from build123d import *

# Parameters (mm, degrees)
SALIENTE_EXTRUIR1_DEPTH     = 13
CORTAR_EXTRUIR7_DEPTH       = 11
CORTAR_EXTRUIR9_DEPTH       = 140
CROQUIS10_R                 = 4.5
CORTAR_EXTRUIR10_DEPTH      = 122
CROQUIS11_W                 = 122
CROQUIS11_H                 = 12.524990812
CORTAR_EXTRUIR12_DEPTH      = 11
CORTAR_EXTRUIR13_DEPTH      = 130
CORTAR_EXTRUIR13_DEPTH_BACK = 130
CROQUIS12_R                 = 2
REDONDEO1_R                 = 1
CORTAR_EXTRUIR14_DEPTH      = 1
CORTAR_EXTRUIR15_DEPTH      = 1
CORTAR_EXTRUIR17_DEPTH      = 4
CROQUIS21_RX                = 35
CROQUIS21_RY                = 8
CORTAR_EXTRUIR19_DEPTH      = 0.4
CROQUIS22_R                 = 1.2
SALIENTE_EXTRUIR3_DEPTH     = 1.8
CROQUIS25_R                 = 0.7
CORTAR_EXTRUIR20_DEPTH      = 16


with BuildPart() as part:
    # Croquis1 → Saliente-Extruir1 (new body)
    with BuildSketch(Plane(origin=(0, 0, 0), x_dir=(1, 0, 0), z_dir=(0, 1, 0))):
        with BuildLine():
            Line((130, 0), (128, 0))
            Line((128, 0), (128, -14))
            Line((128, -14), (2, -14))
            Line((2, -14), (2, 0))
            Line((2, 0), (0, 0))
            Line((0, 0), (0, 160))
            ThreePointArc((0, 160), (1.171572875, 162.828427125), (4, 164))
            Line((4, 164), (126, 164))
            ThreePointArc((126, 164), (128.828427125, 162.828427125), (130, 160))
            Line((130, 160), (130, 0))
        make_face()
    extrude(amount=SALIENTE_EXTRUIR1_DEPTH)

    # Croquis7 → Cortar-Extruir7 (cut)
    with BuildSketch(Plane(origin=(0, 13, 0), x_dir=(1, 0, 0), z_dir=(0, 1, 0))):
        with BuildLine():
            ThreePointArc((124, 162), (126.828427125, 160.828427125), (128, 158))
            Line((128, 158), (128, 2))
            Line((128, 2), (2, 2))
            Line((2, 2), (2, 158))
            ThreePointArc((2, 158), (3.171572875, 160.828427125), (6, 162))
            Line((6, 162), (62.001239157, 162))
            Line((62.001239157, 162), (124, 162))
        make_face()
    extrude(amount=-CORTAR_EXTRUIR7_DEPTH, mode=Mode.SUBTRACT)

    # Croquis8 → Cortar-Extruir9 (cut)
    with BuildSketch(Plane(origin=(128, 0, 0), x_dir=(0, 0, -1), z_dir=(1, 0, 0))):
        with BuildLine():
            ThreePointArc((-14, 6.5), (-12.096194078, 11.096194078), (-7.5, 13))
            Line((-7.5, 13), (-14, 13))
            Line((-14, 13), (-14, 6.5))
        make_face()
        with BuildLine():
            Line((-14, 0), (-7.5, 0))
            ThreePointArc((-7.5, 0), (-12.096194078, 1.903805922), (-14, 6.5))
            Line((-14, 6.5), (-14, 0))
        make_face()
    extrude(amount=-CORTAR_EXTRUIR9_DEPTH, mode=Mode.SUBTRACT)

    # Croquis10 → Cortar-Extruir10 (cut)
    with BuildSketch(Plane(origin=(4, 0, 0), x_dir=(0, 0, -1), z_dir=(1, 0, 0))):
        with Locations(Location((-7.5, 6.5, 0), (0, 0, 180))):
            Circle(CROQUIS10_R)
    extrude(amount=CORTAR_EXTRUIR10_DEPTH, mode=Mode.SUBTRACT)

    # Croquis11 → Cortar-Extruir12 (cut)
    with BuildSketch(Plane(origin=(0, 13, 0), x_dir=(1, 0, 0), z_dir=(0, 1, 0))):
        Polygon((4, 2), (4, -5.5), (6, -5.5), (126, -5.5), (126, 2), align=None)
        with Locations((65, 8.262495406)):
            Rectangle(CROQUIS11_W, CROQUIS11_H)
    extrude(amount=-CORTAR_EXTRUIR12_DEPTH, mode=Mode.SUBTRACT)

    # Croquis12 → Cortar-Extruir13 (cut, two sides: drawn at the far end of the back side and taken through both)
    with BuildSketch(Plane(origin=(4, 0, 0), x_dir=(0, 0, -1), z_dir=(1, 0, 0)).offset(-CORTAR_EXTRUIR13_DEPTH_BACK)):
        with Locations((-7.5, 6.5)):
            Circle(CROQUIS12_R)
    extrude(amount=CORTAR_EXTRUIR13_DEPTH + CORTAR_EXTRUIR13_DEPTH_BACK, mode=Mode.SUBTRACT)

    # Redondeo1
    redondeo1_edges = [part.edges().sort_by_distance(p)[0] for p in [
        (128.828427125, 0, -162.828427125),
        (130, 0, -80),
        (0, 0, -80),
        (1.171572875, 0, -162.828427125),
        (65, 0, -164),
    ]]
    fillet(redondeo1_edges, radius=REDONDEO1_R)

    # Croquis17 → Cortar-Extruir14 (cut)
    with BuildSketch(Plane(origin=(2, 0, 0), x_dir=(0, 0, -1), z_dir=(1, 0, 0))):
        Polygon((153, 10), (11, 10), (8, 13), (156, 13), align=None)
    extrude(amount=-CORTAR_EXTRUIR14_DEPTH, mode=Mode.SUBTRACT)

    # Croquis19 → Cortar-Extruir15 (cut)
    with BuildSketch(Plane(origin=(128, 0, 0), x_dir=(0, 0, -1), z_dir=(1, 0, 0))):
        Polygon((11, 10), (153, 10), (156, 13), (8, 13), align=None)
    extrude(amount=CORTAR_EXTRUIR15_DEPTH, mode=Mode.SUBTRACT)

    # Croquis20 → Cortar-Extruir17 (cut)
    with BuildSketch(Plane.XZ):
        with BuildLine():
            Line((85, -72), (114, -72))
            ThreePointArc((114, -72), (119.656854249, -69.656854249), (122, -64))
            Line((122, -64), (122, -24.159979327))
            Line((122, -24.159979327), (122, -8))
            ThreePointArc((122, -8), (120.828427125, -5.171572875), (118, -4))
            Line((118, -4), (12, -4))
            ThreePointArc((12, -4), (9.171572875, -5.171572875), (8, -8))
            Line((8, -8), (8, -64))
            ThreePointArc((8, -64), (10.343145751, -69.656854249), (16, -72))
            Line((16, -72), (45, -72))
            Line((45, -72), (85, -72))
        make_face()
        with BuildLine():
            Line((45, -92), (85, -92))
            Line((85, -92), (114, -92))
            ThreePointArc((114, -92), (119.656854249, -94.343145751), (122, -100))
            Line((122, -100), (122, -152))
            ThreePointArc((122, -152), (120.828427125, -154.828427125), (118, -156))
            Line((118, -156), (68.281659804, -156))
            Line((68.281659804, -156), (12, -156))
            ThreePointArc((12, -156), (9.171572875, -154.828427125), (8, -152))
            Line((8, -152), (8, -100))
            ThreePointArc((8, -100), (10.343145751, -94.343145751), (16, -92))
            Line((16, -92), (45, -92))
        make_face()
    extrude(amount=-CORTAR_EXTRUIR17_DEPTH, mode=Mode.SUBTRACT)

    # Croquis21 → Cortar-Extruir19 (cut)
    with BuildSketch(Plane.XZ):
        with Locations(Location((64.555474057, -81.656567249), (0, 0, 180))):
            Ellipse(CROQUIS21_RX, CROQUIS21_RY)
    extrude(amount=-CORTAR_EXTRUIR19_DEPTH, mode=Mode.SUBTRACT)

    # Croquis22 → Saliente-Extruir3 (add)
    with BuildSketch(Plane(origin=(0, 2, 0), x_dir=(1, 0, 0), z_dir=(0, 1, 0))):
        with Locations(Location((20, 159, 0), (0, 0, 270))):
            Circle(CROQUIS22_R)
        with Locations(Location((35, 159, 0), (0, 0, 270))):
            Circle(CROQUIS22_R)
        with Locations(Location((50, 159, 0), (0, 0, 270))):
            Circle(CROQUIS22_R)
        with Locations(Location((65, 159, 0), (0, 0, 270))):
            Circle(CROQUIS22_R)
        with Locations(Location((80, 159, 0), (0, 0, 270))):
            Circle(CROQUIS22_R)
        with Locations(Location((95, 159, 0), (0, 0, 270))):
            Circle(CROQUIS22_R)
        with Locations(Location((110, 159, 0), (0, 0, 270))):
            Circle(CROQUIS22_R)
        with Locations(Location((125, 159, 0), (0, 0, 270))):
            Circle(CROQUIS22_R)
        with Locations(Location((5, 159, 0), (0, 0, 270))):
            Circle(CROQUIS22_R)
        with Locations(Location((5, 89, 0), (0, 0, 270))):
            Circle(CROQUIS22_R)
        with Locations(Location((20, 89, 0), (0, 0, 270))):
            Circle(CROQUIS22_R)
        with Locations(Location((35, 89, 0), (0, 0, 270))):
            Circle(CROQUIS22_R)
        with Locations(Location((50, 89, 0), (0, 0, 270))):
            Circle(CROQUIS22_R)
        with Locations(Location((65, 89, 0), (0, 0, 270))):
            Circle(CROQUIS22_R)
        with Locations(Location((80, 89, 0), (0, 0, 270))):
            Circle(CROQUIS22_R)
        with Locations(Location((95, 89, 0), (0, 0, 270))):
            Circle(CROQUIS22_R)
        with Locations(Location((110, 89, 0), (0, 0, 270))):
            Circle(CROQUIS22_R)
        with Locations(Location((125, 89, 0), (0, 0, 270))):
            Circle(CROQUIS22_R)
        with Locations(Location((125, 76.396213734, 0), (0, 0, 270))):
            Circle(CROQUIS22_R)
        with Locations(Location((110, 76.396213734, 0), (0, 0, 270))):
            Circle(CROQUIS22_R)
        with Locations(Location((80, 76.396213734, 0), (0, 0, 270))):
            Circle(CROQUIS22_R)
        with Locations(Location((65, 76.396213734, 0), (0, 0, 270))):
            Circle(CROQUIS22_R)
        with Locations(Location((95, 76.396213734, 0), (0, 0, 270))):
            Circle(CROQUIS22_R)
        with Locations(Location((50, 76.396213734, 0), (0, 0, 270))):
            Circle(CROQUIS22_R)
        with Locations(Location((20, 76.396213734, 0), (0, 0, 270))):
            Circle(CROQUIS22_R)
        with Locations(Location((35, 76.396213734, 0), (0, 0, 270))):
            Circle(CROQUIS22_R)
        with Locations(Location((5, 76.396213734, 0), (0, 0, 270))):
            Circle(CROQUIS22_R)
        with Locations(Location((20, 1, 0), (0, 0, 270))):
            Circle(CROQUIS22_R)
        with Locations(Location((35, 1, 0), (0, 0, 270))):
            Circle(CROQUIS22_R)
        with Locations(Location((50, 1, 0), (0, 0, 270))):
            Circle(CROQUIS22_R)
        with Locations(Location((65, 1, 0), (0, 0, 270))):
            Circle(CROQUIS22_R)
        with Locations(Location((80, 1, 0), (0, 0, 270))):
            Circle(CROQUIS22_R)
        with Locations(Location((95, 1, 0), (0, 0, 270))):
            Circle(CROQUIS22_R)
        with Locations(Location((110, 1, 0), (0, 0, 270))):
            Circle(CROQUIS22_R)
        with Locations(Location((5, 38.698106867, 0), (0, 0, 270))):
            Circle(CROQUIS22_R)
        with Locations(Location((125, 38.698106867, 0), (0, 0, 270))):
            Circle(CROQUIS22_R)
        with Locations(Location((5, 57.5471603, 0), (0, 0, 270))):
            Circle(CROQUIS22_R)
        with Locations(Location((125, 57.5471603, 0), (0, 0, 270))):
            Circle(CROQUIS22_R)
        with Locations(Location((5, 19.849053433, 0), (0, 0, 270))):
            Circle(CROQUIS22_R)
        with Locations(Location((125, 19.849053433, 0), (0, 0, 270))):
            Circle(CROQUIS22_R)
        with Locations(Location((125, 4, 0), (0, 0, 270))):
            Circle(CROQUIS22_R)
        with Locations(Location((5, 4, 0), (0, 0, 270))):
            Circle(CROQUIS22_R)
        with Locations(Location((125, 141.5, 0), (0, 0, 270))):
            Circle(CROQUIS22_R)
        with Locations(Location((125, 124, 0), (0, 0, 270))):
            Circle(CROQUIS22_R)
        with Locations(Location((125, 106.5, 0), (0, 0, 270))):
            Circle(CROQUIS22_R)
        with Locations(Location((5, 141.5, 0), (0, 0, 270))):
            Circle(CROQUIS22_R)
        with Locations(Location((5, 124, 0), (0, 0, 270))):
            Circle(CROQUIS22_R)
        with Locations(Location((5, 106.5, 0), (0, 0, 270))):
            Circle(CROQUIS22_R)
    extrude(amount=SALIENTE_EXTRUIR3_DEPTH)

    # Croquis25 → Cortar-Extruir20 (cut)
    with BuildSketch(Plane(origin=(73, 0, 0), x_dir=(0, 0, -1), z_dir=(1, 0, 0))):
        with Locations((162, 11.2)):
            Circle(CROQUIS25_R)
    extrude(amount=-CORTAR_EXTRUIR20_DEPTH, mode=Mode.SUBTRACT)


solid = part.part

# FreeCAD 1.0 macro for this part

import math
import FreeCAD as App
import Part
import Sketcher
from FreeCAD import Vector


def edges_at(feature, points):
    """Names of the edges that pass closest to the given points."""
    edges = feature.Shape.Edges
    near = lambda p: min(range(len(edges)), key=lambda i: edges[i].distToShape(Part.Vertex(*p))[0])
    return sorted({f"Edge{near(p) + 1}" for p in points})

doc = App.newDocument("Part")
body = doc.addObject("PartDesign::Body", "Body")

# Sketch on XZ plane
sketch1 = doc.addObject("Sketcher::SketchObject", "Sketch")
body.addObject(sketch1)
sketch1.AttachmentSupport = (doc.XZ_Plane, [""])
sketch1.MapMode = "FlatFace"
sketch1.addGeometry([
    Part.LineSegment(Vector(128, 0, 0), Vector(130, 0, 0)),  # 0
    Part.LineSegment(Vector(130, 0, 0), Vector(130, -160, 0)),  # 1
    Part.ArcOfCircle(Part.Circle(Vector(126, -160, 0), Vector(0, 0, 1), 4), math.radians(-90), math.radians(0)),  # 2
    Part.LineSegment(Vector(126, -164, 0), Vector(4, -164, 0)),  # 3
    Part.ArcOfCircle(Part.Circle(Vector(4, -160, 0), Vector(0, 0, 1), 4), math.radians(180), math.radians(270)),  # 4
    Part.LineSegment(Vector(0, -160, 0), Vector(0, 0, 0)),  # 5
    Part.LineSegment(Vector(0, 0, 0), Vector(2, 0, 0)),  # 6
    Part.LineSegment(Vector(2, 0, 0), Vector(2, 14, 0)),  # 7
    Part.LineSegment(Vector(2, 14, 0), Vector(128, 14, 0)),  # 8
    Part.LineSegment(Vector(128, 14, 0), Vector(128, 0, 0)),  # 9
], False)
sketch1.addConstraint([
    Sketcher.Constraint("Coincident", 0, 2, 1, 1),
    Sketcher.Constraint("Tangent", 1, 2, 2, 2),
    Sketcher.Constraint("Tangent", 2, 1, 3, 1),
    Sketcher.Constraint("Tangent", 3, 2, 4, 2),
    Sketcher.Constraint("Tangent", 4, 1, 5, 1),
    Sketcher.Constraint("Coincident", 5, 2, 6, 1),
    Sketcher.Constraint("Coincident", 6, 2, 7, 1),
    Sketcher.Constraint("Coincident", 7, 2, 8, 1),
    Sketcher.Constraint("Coincident", 8, 2, 9, 1),
    Sketcher.Constraint("Coincident", 9, 2, 0, 1),
    Sketcher.Constraint("Horizontal", 0),
    Sketcher.Constraint("Vertical", 1),
    Sketcher.Constraint("Horizontal", 3),
    Sketcher.Constraint("Vertical", 5),
    Sketcher.Constraint("Horizontal", 6),
    Sketcher.Constraint("Vertical", 7),
    Sketcher.Constraint("Horizontal", 8),
    Sketcher.Constraint("Vertical", 9),
    Sketcher.Constraint("Coincident", 5, 2, -1, 1),
    Sketcher.Constraint("Equal", 2, 4),
    Sketcher.Constraint("PointOnObject", 0, 2, -1),
    Sketcher.Constraint("Equal", 0, 6),
    Sketcher.Constraint("Radius", 2, 4.0),
    Sketcher.Constraint("DistanceX", 0, 1, 0, 2, 2.0),
    Sketcher.Constraint("DistanceX", 3, 2, 3, 1, 122.0),
    Sketcher.Constraint("DistanceY", 1, 2, 1, 1, 160.0),
    Sketcher.Constraint("DistanceY", 7, 1, 7, 2, 14.0),
])
pad1 = doc.addObject("PartDesign::Pad", "Pad")
body.addObject(pad1)
pad1.Profile = sketch1
pad1.Length = 13
pad1.Reversed = True

# Sketch on XZ plane
sketch2 = doc.addObject("Sketcher::SketchObject", "Sketch001")
body.addObject(sketch2)
sketch2.AttachmentSupport = (doc.XZ_Plane, [""])
sketch2.MapMode = "FlatFace"
sketch2.AttachmentOffset = App.Placement(Vector(0, 0, -13), App.Rotation())
sketch2.addGeometry([
    Part.ArcOfCircle(Part.Circle(Vector(124, -158, 0), Vector(0, 0, 1), 4), math.radians(-90), math.radians(0)),  # 0
    Part.LineSegment(Vector(124, -162, 0), Vector(6, -162, 0)),  # 1
    Part.ArcOfCircle(Part.Circle(Vector(6, -158, 0), Vector(0, 0, 1), 4), math.radians(180), math.radians(270)),  # 2
    Part.LineSegment(Vector(2, -158, 0), Vector(2, -2, 0)),  # 3
    Part.LineSegment(Vector(2, -2, 0), Vector(128, -2, 0)),  # 4
    Part.LineSegment(Vector(128, -2, 0), Vector(128, -158, 0)),  # 5
], False)
sketch2.addConstraint([
    Sketcher.Constraint("Tangent", 0, 1, 1, 1),
    Sketcher.Constraint("Tangent", 1, 2, 2, 2),
    Sketcher.Constraint("Tangent", 2, 1, 3, 1),
    Sketcher.Constraint("Coincident", 3, 2, 4, 1),
    Sketcher.Constraint("Coincident", 4, 2, 5, 1),
    Sketcher.Constraint("Tangent", 5, 2, 0, 2),
    Sketcher.Constraint("Horizontal", 1),
    Sketcher.Constraint("Vertical", 3),
    Sketcher.Constraint("Horizontal", 4),
    Sketcher.Constraint("Vertical", 5),
    Sketcher.Constraint("Equal", 0, 2),
    Sketcher.Constraint("Radius", 0, 4.0),
    Sketcher.Constraint("DistanceX", 1, 2, 1, 1, 118.0),
    Sketcher.Constraint("DistanceY", 3, 1, 3, 2, 156.0),
    Sketcher.Constraint("DistanceX", -1, 1, 0, 3, 124.0),
    Sketcher.Constraint("DistanceY", 0, 3, -1, 1, 158.0),
])
pocket1 = doc.addObject("PartDesign::Pocket", "Pocket")
body.addObject(pocket1)
pocket1.Profile = sketch2
pocket1.Length = 11
pocket1.Reversed = True

# Sketch on YZ plane
sketch3 = doc.addObject("Sketcher::SketchObject", "Sketch002")
body.addObject(sketch3)
sketch3.AttachmentSupport = (doc.YZ_Plane, [""])
sketch3.MapMode = "FlatFace"
sketch3.AttachmentOffset = App.Placement(Vector(0, 0, 128), App.Rotation())
sketch3.addGeometry([
    Part.ArcOfCircle(Part.Circle(Vector(7, 8, 0), Vector(0, 0, 1), 6), math.radians(0), math.radians(90)),  # 0
    Part.LineSegment(Vector(13, 8, 0), Vector(13, 14, 0)),  # 1
    Part.LineSegment(Vector(13, 14, 0), Vector(6, 14, 0)),  # 2
    Part.LineSegment(Vector(0, 14, 0), Vector(0, 8, 0)),  # 3
    Part.ArcOfCircle(Part.Circle(Vector(6, 8, 0), Vector(0, 0, 1), 6), math.radians(90), math.radians(180)),  # 4
    Part.LineSegment(Vector(6, 14, 0), Vector(0, 14, 0)),  # 5
], False)
sketch3.addConstraint([
    Sketcher.Constraint("Tangent", 0, 1, 1, 1),
    Sketcher.Constraint("Coincident", 1, 2, 2, 1),
    Sketcher.Constraint("Tangent", 2, 2, 0, 2),
    Sketcher.Constraint("Tangent", 3, 2, 4, 2),
    Sketcher.Constraint("Tangent", 4, 1, 5, 1),
    Sketcher.Constraint("Coincident", 5, 2, 3, 1),
    Sketcher.Constraint("Vertical", 1),
    Sketcher.Constraint("Horizontal", 2),
    Sketcher.Constraint("Vertical", 3),
    Sketcher.Constraint("Horizontal", 5),
    Sketcher.Constraint("Coincident", 4, 3, 0, 3),
    Sketcher.Constraint("Equal", 0, 4),
    Sketcher.Constraint("PointOnObject", 3, 2, -2),
    Sketcher.Constraint("Radius", 0, 6.5),
    Sketcher.Constraint("DistanceY", -1, 1, 1, 2, 14.0),
])
pocket2 = doc.addObject("PartDesign::Pocket", "Pocket001")
body.addObject(pocket2)
pocket2.Profile = sketch3
pocket2.Length = 140

# Sketch on YZ plane
sketch4 = doc.addObject("Sketcher::SketchObject", "Sketch003")
body.addObject(sketch4)
sketch4.AttachmentSupport = (doc.YZ_Plane, [""])
sketch4.MapMode = "FlatFace"
sketch4.AttachmentOffset = App.Placement(Vector(0, 0, 4), App.Rotation())
sketch4.addGeometry(Part.Circle(Vector(6.5, 7.5, 0), Vector(0, 0, 1), 4.5), False)
sketch4.addConstraint([
    Sketcher.Constraint("Diameter", 0, 9.0),
    Sketcher.Constraint("DistanceX", -1, 1, 0, 3, 6.5),
    Sketcher.Constraint("DistanceY", -1, 1, 0, 3, 7.5),
])
pocket3 = doc.addObject("PartDesign::Pocket", "Pocket002")
body.addObject(pocket3)
pocket3.Profile = sketch4
pocket3.Length = 122
pocket3.Reversed = True

# Sketch on XZ plane
sketch5 = doc.addObject("Sketcher::SketchObject", "Sketch004")
body.addObject(sketch5)
sketch5.AttachmentSupport = (doc.XZ_Plane, [""])
sketch5.MapMode = "FlatFace"
sketch5.AttachmentOffset = App.Placement(Vector(0, 0, -13), App.Rotation())
sketch5.addGeometry([
    Part.LineSegment(Vector(4, 6, 0), Vector(126, 6, 0)),
    Part.LineSegment(Vector(126, 6, 0), Vector(126, -15, 0)),
    Part.LineSegment(Vector(126, -15, 0), Vector(4, -15, 0)),
    Part.LineSegment(Vector(4, -15, 0), Vector(4, 6, 0)),
], False)
sketch5.addConstraint([
    Sketcher.Constraint("Coincident", 0, 2, 1, 1),
    Sketcher.Constraint("Coincident", 1, 2, 2, 1),
    Sketcher.Constraint("Coincident", 2, 2, 3, 1),
    Sketcher.Constraint("Coincident", 3, 2, 0, 1),
    Sketcher.Constraint("Horizontal", 0),
    Sketcher.Constraint("Vertical", 1),
    Sketcher.Constraint("Horizontal", 2),
    Sketcher.Constraint("Vertical", 3),
    Sketcher.Constraint("DistanceX", 0, 1, 0, 2, 122.0),
    Sketcher.Constraint("DistanceX", -1, 1, 0, 2, 126.0),
    Sketcher.Constraint("DistanceY", -1, 1, 0, 2, 5.5),
    Sketcher.Constraint("DistanceY", 1, 2, 1, 1, 20.024991),
])
pocket4 = doc.addObject("PartDesign::Pocket", "Pocket003")
body.addObject(pocket4)
pocket4.Profile = sketch5
pocket4.Length = 11
pocket4.Reversed = True

# Sketch on YZ plane
sketch6 = doc.addObject("Sketcher::SketchObject", "Sketch005")
body.addObject(sketch6)
sketch6.AttachmentSupport = (doc.YZ_Plane, [""])
sketch6.MapMode = "FlatFace"
sketch6.AttachmentOffset = App.Placement(Vector(0, 0, 4), App.Rotation())
sketch6.addGeometry(Part.Circle(Vector(6.5, 7.5, 0), Vector(0, 0, 1), 2), False)
sketch6.addConstraint([
    Sketcher.Constraint("Diameter", 0, 4.0),
    Sketcher.Constraint("DistanceX", -1, 1, 0, 3, 6.5),
    Sketcher.Constraint("DistanceY", -1, 1, 0, 3, 7.5),
])
pocket5 = doc.addObject("PartDesign::Pocket", "Pocket004")
body.addObject(pocket5)
pocket5.Profile = sketch6
pocket5.Type = "ThroughAll"
pocket5.Midplane = True
doc.recompute()

fillet = doc.addObject("PartDesign::Fillet", "Fillet")
body.addObject(fillet)
fillet.Base = (pocket5, edges_at(pocket5, [
    (128.828, 0, -162.828),
    (130, 0, -80),
    (0, 0, -80),
    (1.172, 0, -162.828),
    (65, 0, -164),
]))
fillet.Radius = 1

# Sketch on YZ plane
sketch7 = doc.addObject("Sketcher::SketchObject", "Sketch006")
body.addObject(sketch7)
sketch7.AttachmentSupport = (doc.YZ_Plane, [""])
sketch7.MapMode = "FlatFace"
sketch7.AttachmentOffset = App.Placement(Vector(0, 0, 2), App.Rotation())
sketch7.addGeometry([
    Part.LineSegment(Vector(10, -11, 0), Vector(10, -153, 0)),
    Part.LineSegment(Vector(10, -153, 0), Vector(13, -156, 0)),
    Part.LineSegment(Vector(13, -156, 0), Vector(13, -8, 0)),
    Part.LineSegment(Vector(13, -8, 0), Vector(10, -11, 0)),
], False)
sketch7.addConstraint([
    Sketcher.Constraint("Coincident", 0, 2, 1, 1),
    Sketcher.Constraint("Coincident", 1, 2, 2, 1),
    Sketcher.Constraint("Coincident", 2, 2, 3, 1),
    Sketcher.Constraint("Coincident", 3, 2, 0, 1),
    Sketcher.Constraint("Vertical", 0),
    Sketcher.Constraint("Vertical", 2),
    Sketcher.Constraint("Perpendicular", 1, 3),
    Sketcher.Constraint("Equal", 1, 3),
    Sketcher.Constraint("DistanceY", 0, 2, 0, 1, 142.0),
    Sketcher.Constraint("DistanceY", 2, 1, 2, 2, 148.0),
    Sketcher.Constraint("DistanceX", -1, 1, 0, 2, 10.0),
    Sketcher.Constraint("DistanceY", 0, 2, -1, 1, 153.0),
])
pocket6 = doc.addObject("PartDesign::Pocket", "Pocket005")
body.addObject(pocket6)
pocket6.Profile = sketch7
pocket6.Length = 1

# Sketch on YZ plane
sketch8 = doc.addObject("Sketcher::SketchObject", "Sketch007")
body.addObject(sketch8)
sketch8.AttachmentSupport = (doc.YZ_Plane, [""])
sketch8.MapMode = "FlatFace"
sketch8.AttachmentOffset = App.Placement(Vector(0, 0, 128), App.Rotation())
sketch8.addGeometry([
    Part.LineSegment(Vector(10, -11, 0), Vector(10, -153, 0)),
    Part.LineSegment(Vector(10, -153, 0), Vector(13, -156, 0)),
    Part.LineSegment(Vector(13, -156, 0), Vector(13, -8, 0)),
    Part.LineSegment(Vector(13, -8, 0), Vector(10, -11, 0)),
], False)
sketch8.addConstraint([
    Sketcher.Constraint("Coincident", 0, 2, 1, 1),
    Sketcher.Constraint("Coincident", 1, 2, 2, 1),
    Sketcher.Constraint("Coincident", 2, 2, 3, 1),
    Sketcher.Constraint("Coincident", 3, 2, 0, 1),
    Sketcher.Constraint("Vertical", 0),
    Sketcher.Constraint("Vertical", 2),
    Sketcher.Constraint("Perpendicular", 1, 3),
    Sketcher.Constraint("Equal", 1, 3),
    Sketcher.Constraint("DistanceY", 0, 2, 0, 1, 142.0),
    Sketcher.Constraint("DistanceY", 2, 1, 2, 2, 148.0),
    Sketcher.Constraint("DistanceX", -1, 1, 0, 2, 10.0),
    Sketcher.Constraint("DistanceY", 0, 2, -1, 1, 153.0),
])
pocket7 = doc.addObject("PartDesign::Pocket", "Pocket006")
body.addObject(pocket7)
pocket7.Profile = sketch8
pocket7.Length = 1
pocket7.Reversed = True

# Sketch on XZ plane
sketch9 = doc.addObject("Sketcher::SketchObject", "Sketch008")
body.addObject(sketch9)
sketch9.AttachmentSupport = (doc.XZ_Plane, [""])
sketch9.MapMode = "FlatFace"
sketch9.addGeometry([
    Part.ArcOfCircle(Part.Circle(Vector(114, -64, 0), Vector(0, 0, 1), 8), math.radians(-90), math.radians(0)),  # 0
    Part.LineSegment(Vector(122, -64, 0), Vector(122, -8, 0)),  # 1
    Part.ArcOfCircle(Part.Circle(Vector(118, -8, 0), Vector(0, 0, 1), 4), math.radians(0), math.radians(90)),  # 2
    Part.LineSegment(Vector(118, -4, 0), Vector(12, -4, 0)),  # 3
    Part.ArcOfCircle(Part.Circle(Vector(12, -8, 0), Vector(0, 0, 1), 4), math.radians(90), math.radians(180)),  # 4
    Part.LineSegment(Vector(8, -8, 0), Vector(8, -64, 0)),  # 5
    Part.ArcOfCircle(Part.Circle(Vector(16, -64, 0), Vector(0, 0, 1), 8), math.radians(-180), math.radians(-90)),  # 6
    Part.LineSegment(Vector(16, -72, 0), Vector(114, -72, 0)),  # 7
    Part.ArcOfCircle(Part.Circle(Vector(114, -100, 0), Vector(0, 0, 1), 8), math.radians(0), math.radians(90)),  # 8
    Part.LineSegment(Vector(114, -92, 0), Vector(16, -92, 0)),  # 9
    Part.ArcOfCircle(Part.Circle(Vector(16, -100, 0), Vector(0, 0, 1), 8), math.radians(90), math.radians(180)),  # 10
    Part.LineSegment(Vector(8, -100, 0), Vector(8, -152, 0)),  # 11
    Part.ArcOfCircle(Part.Circle(Vector(12, -152, 0), Vector(0, 0, 1), 4), math.radians(180), math.radians(270)),  # 12
    Part.LineSegment(Vector(12, -156, 0), Vector(118, -156, 0)),  # 13
    Part.ArcOfCircle(Part.Circle(Vector(118, -152, 0), Vector(0, 0, 1), 4), math.radians(-90), math.radians(0)),  # 14
    Part.LineSegment(Vector(122, -152, 0), Vector(122, -100, 0)),  # 15
], False)
sketch9.addConstraint([
    Sketcher.Constraint("Tangent", 0, 2, 1, 1),
    Sketcher.Constraint("Tangent", 1, 2, 2, 1),
    Sketcher.Constraint("Tangent", 2, 2, 3, 1),
    Sketcher.Constraint("Tangent", 3, 2, 4, 1),
    Sketcher.Constraint("Tangent", 4, 2, 5, 1),
    Sketcher.Constraint("Tangent", 5, 2, 6, 1),
    Sketcher.Constraint("Tangent", 6, 2, 7, 1),
    Sketcher.Constraint("Tangent", 7, 2, 0, 1),
    Sketcher.Constraint("Tangent", 8, 2, 9, 1),
    Sketcher.Constraint("Tangent", 9, 2, 10, 1),
    Sketcher.Constraint("Tangent", 10, 2, 11, 1),
    Sketcher.Constraint("Tangent", 11, 2, 12, 1),
    Sketcher.Constraint("Tangent", 12, 2, 13, 1),
    Sketcher.Constraint("Tangent", 13, 2, 14, 1),
    Sketcher.Constraint("Tangent", 14, 2, 15, 1),
    Sketcher.Constraint("Tangent", 15, 2, 8, 1),
    Sketcher.Constraint("Vertical", 1),
    Sketcher.Constraint("Horizontal", 3),
    Sketcher.Constraint("Vertical", 5),
    Sketcher.Constraint("Horizontal", 7),
    Sketcher.Constraint("Horizontal", 9),
    Sketcher.Constraint("Vertical", 11),
    Sketcher.Constraint("Horizontal", 13),
    Sketcher.Constraint("Vertical", 15),
    Sketcher.Constraint("Equal", 2, 4),
    Sketcher.Constraint("Equal", 0, 6),
    Sketcher.Constraint("Equal", 6, 8),
    Sketcher.Constraint("Equal", 8, 10),
    Sketcher.Constraint("Equal", 4, 12),
    Sketcher.Constraint("Equal", 12, 14),
    Sketcher.Constraint("Vertical", 0, 3, 8, 3),
    Sketcher.Constraint("Vertical", 6, 3, 10, 3),
    Sketcher.Constraint("Radius", 0, 8.0),
    Sketcher.Constraint("Radius", 2, 4.0),
    Sketcher.Constraint("DistanceX", 3, 2, 3, 1, 106.0),
    Sketcher.Constraint("DistanceY", 1, 1, 1, 2, 56.0),
    Sketcher.Constraint("DistanceY", 11, 2, 11, 1, 52.0),
    Sketcher.Constraint("DistanceX", -1, 1, 0, 3, 114.0),
    Sketcher.Constraint("DistanceY", 0, 3, -1, 1, 64.0),
    Sketcher.Constraint("DistanceY", 8, 3, -1, 1, 100.0),
])
pocket8 = doc.addObject("PartDesign::Pocket", "Pocket007")
body.addObject(pocket8)
pocket8.Profile = sketch9
pocket8.Length = 4

# Sketch on XZ plane
sketch10 = doc.addObject("Sketcher::SketchObject", "Sketch009")
body.addObject(sketch10)
sketch10.AttachmentSupport = (doc.XZ_Plane, [""])
sketch10.MapMode = "FlatFace"
sketch10.addGeometry(Part.Ellipse(Vector(29.555474, -81.656567, 0), Vector(64.555474, -89.656567, 0), Vector(64.555474, -81.656567, 0)), False)
sketch10.addConstraint(Sketcher.Constraint("Block", 0))
pocket9 = doc.addObject("PartDesign::Pocket", "Pocket008")
body.addObject(pocket9)
pocket9.Profile = sketch10
pocket9.Length = 0.4

# Sketch on XZ plane
sketch11 = doc.addObject("Sketcher::SketchObject", "Sketch010")
body.addObject(sketch11)
sketch11.AttachmentSupport = (doc.XZ_Plane, [""])
sketch11.MapMode = "FlatFace"
sketch11.AttachmentOffset = App.Placement(Vector(0, 0, -2), App.Rotation())
sketch11.addGeometry([
    Part.Circle(Vector(20, -159, 0), Vector(0, 0, 1), 1.2),  # 0
    Part.Circle(Vector(35, -159, 0), Vector(0, 0, 1), 1.2),  # 1
    Part.Circle(Vector(50, -159, 0), Vector(0, 0, 1), 1.2),  # 2
    Part.Circle(Vector(65, -159, 0), Vector(0, 0, 1), 1.2),  # 3
    Part.Circle(Vector(80, -159, 0), Vector(0, 0, 1), 1.2),  # 4
    Part.Circle(Vector(95, -159, 0), Vector(0, 0, 1), 1.2),  # 5
    Part.Circle(Vector(110, -159, 0), Vector(0, 0, 1), 1.2),  # 6
    Part.Circle(Vector(125, -159, 0), Vector(0, 0, 1), 1.2),  # 7
    Part.Circle(Vector(5, -159, 0), Vector(0, 0, 1), 1.2),  # 8
    Part.Circle(Vector(5, -89, 0), Vector(0, 0, 1), 1.2),  # 9
    Part.Circle(Vector(20, -89, 0), Vector(0, 0, 1), 1.2),  # 10
    Part.Circle(Vector(35, -89, 0), Vector(0, 0, 1), 1.2),  # 11
    Part.Circle(Vector(50, -89, 0), Vector(0, 0, 1), 1.2),  # 12
    Part.Circle(Vector(65, -89, 0), Vector(0, 0, 1), 1.2),  # 13
    Part.Circle(Vector(80, -89, 0), Vector(0, 0, 1), 1.2),  # 14
    Part.Circle(Vector(95, -89, 0), Vector(0, 0, 1), 1.2),  # 15
    Part.Circle(Vector(110, -89, 0), Vector(0, 0, 1), 1.2),  # 16
    Part.Circle(Vector(125, -89, 0), Vector(0, 0, 1), 1.2),  # 17
    Part.Circle(Vector(125, -76.4, 0), Vector(0, 0, 1), 1.2),  # 18
    Part.Circle(Vector(110, -76.4, 0), Vector(0, 0, 1), 1.2),  # 19
    Part.Circle(Vector(80, -76.4, 0), Vector(0, 0, 1), 1.2),  # 20
    Part.Circle(Vector(65, -76.4, 0), Vector(0, 0, 1), 1.2),  # 21
    Part.Circle(Vector(95, -76.4, 0), Vector(0, 0, 1), 1.2),  # 22
    Part.Circle(Vector(50, -76.4, 0), Vector(0, 0, 1), 1.2),  # 23
    Part.Circle(Vector(20, -76.4, 0), Vector(0, 0, 1), 1.2),  # 24
    Part.Circle(Vector(35, -76.4, 0), Vector(0, 0, 1), 1.2),  # 25
    Part.Circle(Vector(5, -76.4, 0), Vector(0, 0, 1), 1.2),  # 26
    Part.Circle(Vector(20, -1, 0), Vector(0, 0, 1), 1.2),  # 27
    Part.Circle(Vector(35, -1, 0), Vector(0, 0, 1), 1.2),  # 28
    Part.Circle(Vector(50, -1, 0), Vector(0, 0, 1), 1.2),  # 29
    Part.Circle(Vector(65, -1, 0), Vector(0, 0, 1), 1.2),  # 30
    Part.Circle(Vector(80, -1, 0), Vector(0, 0, 1), 1.2),  # 31
    Part.Circle(Vector(95, -1, 0), Vector(0, 0, 1), 1.2),  # 32
    Part.Circle(Vector(110, -1, 0), Vector(0, 0, 1), 1.2),  # 33
    Part.Circle(Vector(5, -38.7, 0), Vector(0, 0, 1), 1.2),  # 34
    Part.Circle(Vector(125, -38.7, 0), Vector(0, 0, 1), 1.2),  # 35
    Part.Circle(Vector(5, -57.5, 0), Vector(0, 0, 1), 1.2),  # 36
    Part.Circle(Vector(125, -57.5, 0), Vector(0, 0, 1), 1.2),  # 37
    Part.Circle(Vector(5, -19.8, 0), Vector(0, 0, 1), 1.2),  # 38
    Part.Circle(Vector(125, -19.8, 0), Vector(0, 0, 1), 1.2),  # 39
    Part.Circle(Vector(125, -4, 0), Vector(0, 0, 1), 1.2),  # 40
    Part.Circle(Vector(5, -4, 0), Vector(0, 0, 1), 1.2),  # 41
    Part.Circle(Vector(125, -141.5, 0), Vector(0, 0, 1), 1.2),  # 42
    Part.Circle(Vector(125, -124, 0), Vector(0, 0, 1), 1.2),  # 43
    Part.Circle(Vector(125, -106.5, 0), Vector(0, 0, 1), 1.2),  # 44
    Part.Circle(Vector(5, -141.5, 0), Vector(0, 0, 1), 1.2),  # 45
    Part.Circle(Vector(5, -124, 0), Vector(0, 0, 1), 1.2),  # 46
    Part.Circle(Vector(5, -106.5, 0), Vector(0, 0, 1), 1.2),  # 47
], False)
sketch11.addConstraint([
    Sketcher.Constraint("Equal", 0, 1),
    Sketcher.Constraint("Equal", 1, 2),
    Sketcher.Constraint("Equal", 2, 3),
    Sketcher.Constraint("Equal", 3, 4),
    Sketcher.Constraint("Equal", 4, 5),
    Sketcher.Constraint("Equal", 5, 6),
    Sketcher.Constraint("Equal", 6, 7),
    Sketcher.Constraint("Equal", 7, 8),
    Sketcher.Constraint("Equal", 8, 9),
    Sketcher.Constraint("Equal", 9, 10),
    Sketcher.Constraint("Equal", 10, 11),
    Sketcher.Constraint("Equal", 11, 12),
    Sketcher.Constraint("Equal", 12, 13),
    Sketcher.Constraint("Equal", 13, 14),
    Sketcher.Constraint("Equal", 14, 15),
    Sketcher.Constraint("Equal", 15, 16),
    Sketcher.Constraint("Equal", 16, 17),
    Sketcher.Constraint("Equal", 17, 18),
    Sketcher.Constraint("Equal", 18, 19),
    Sketcher.Constraint("Equal", 19, 20),
    Sketcher.Constraint("Equal", 20, 21),
    Sketcher.Constraint("Equal", 21, 22),
    Sketcher.Constraint("Equal", 22, 23),
    Sketcher.Constraint("Equal", 23, 24),
    Sketcher.Constraint("Equal", 24, 25),
    Sketcher.Constraint("Equal", 25, 26),
    Sketcher.Constraint("Equal", 26, 27),
    Sketcher.Constraint("Equal", 27, 28),
    Sketcher.Constraint("Equal", 28, 29),
    Sketcher.Constraint("Equal", 29, 30),
    Sketcher.Constraint("Equal", 30, 31),
    Sketcher.Constraint("Equal", 31, 32),
    Sketcher.Constraint("Equal", 32, 33),
    Sketcher.Constraint("Equal", 33, 34),
    Sketcher.Constraint("Equal", 34, 35),
    Sketcher.Constraint("Equal", 35, 36),
    Sketcher.Constraint("Equal", 36, 37),
    Sketcher.Constraint("Equal", 37, 38),
    Sketcher.Constraint("Equal", 38, 39),
    Sketcher.Constraint("Equal", 39, 40),
    Sketcher.Constraint("Equal", 40, 41),
    Sketcher.Constraint("Equal", 41, 42),
    Sketcher.Constraint("Equal", 42, 43),
    Sketcher.Constraint("Equal", 43, 44),
    Sketcher.Constraint("Equal", 44, 45),
    Sketcher.Constraint("Equal", 45, 46),
    Sketcher.Constraint("Equal", 46, 47),
    Sketcher.Constraint("Horizontal", 0, 3, 1, 3),
    Sketcher.Constraint("Horizontal", 1, 3, 2, 3),
    Sketcher.Constraint("Horizontal", 2, 3, 3, 3),
    Sketcher.Constraint("Horizontal", 3, 3, 4, 3),
    Sketcher.Constraint("Horizontal", 4, 3, 5, 3),
    Sketcher.Constraint("Horizontal", 5, 3, 6, 3),
    Sketcher.Constraint("Horizontal", 6, 3, 7, 3),
    Sketcher.Constraint("Horizontal", 7, 3, 8, 3),
    Sketcher.Constraint("Horizontal", 9, 3, 10, 3),
    Sketcher.Constraint("Horizontal", 10, 3, 11, 3),
    Sketcher.Constraint("Horizontal", 11, 3, 12, 3),
    Sketcher.Constraint("Horizontal", 12, 3, 13, 3),
    Sketcher.Constraint("Horizontal", 13, 3, 14, 3),
    Sketcher.Constraint("Horizontal", 14, 3, 15, 3),
    Sketcher.Constraint("Horizontal", 15, 3, 16, 3),
    Sketcher.Constraint("Horizontal", 16, 3, 17, 3),
    Sketcher.Constraint("Horizontal", 18, 3, 19, 3),
    Sketcher.Constraint("Horizontal", 19, 3, 20, 3),
    Sketcher.Constraint("Horizontal", 20, 3, 21, 3),
    Sketcher.Constraint("Horizontal", 21, 3, 22, 3),
    Sketcher.Constraint("Horizontal", 22, 3, 23, 3),
    Sketcher.Constraint("Horizontal", 23, 3, 24, 3),
    Sketcher.Constraint("Horizontal", 24, 3, 25, 3),
    Sketcher.Constraint("Horizontal", 25, 3, 26, 3),
    Sketcher.Constraint("Horizontal", 27, 3, 28, 3),
    Sketcher.Constraint("Horizontal", 28, 3, 29, 3),
    Sketcher.Constraint("Horizontal", 29, 3, 30, 3),
    Sketcher.Constraint("Horizontal", 30, 3, 31, 3),
    Sketcher.Constraint("Horizontal", 31, 3, 32, 3),
    Sketcher.Constraint("Horizontal", 32, 3, 33, 3),
    Sketcher.Constraint("Horizontal", 34, 3, 35, 3),
    Sketcher.Constraint("Horizontal", 36, 3, 37, 3),
    Sketcher.Constraint("Horizontal", 38, 3, 39, 3),
    Sketcher.Constraint("Horizontal", 40, 3, 41, 3),
    Sketcher.Constraint("Horizontal", 42, 3, 45, 3),
    Sketcher.Constraint("Horizontal", 43, 3, 46, 3),
    Sketcher.Constraint("Horizontal", 44, 3, 47, 3),
    Sketcher.Constraint("Vertical", 8, 3, 9, 3),
    Sketcher.Constraint("Vertical", 0, 3, 10, 3),
    Sketcher.Constraint("Vertical", 1, 3, 11, 3),
    Sketcher.Constraint("Vertical", 2, 3, 12, 3),
    Sketcher.Constraint("Vertical", 3, 3, 13, 3),
    Sketcher.Constraint("Vertical", 4, 3, 14, 3),
    Sketcher.Constraint("Vertical", 5, 3, 15, 3),
    Sketcher.Constraint("Vertical", 6, 3, 16, 3),
    Sketcher.Constraint("Vertical", 7, 3, 17, 3),
    Sketcher.Constraint("Vertical", 17, 3, 18, 3),
    Sketcher.Constraint("Vertical", 16, 3, 19, 3),
    Sketcher.Constraint("Vertical", 14, 3, 20, 3),
    Sketcher.Constraint("Vertical", 13, 3, 21, 3),
    Sketcher.Constraint("Vertical", 15, 3, 22, 3),
    Sketcher.Constraint("Vertical", 12, 3, 23, 3),
    Sketcher.Constraint("Vertical", 10, 3, 24, 3),
    Sketcher.Constraint("Vertical", 11, 3, 25, 3),
    Sketcher.Constraint("Vertical", 9, 3, 26, 3),
    Sketcher.Constraint("Vertical", 24, 3, 27, 3),
    Sketcher.Constraint("Vertical", 25, 3, 28, 3),
    Sketcher.Constraint("Vertical", 23, 3, 29, 3),
    Sketcher.Constraint("Vertical", 21, 3, 30, 3),
    Sketcher.Constraint("Vertical", 20, 3, 31, 3),
    Sketcher.Constraint("Vertical", 22, 3, 32, 3),
    Sketcher.Constraint("Vertical", 19, 3, 33, 3),
    Sketcher.Constraint("Vertical", 26, 3, 34, 3),
    Sketcher.Constraint("Vertical", 18, 3, 35, 3),
    Sketcher.Constraint("Vertical", 34, 3, 36, 3),
    Sketcher.Constraint("Vertical", 35, 3, 37, 3),
    Sketcher.Constraint("Vertical", 36, 3, 38, 3),
    Sketcher.Constraint("Vertical", 37, 3, 39, 3),
    Sketcher.Constraint("Vertical", 39, 3, 40, 3),
    Sketcher.Constraint("Vertical", 38, 3, 41, 3),
    Sketcher.Constraint("Vertical", 40, 3, 42, 3),
    Sketcher.Constraint("Vertical", 42, 3, 43, 3),
    Sketcher.Constraint("Vertical", 43, 3, 44, 3),
    Sketcher.Constraint("Vertical", 41, 3, 45, 3),
    Sketcher.Constraint("Vertical", 45, 3, 46, 3),
    Sketcher.Constraint("Vertical", 46, 3, 47, 3),
    Sketcher.Constraint("Diameter", 0, 2.4),
    Sketcher.Constraint("DistanceX", -1, 1, 0, 3, 20.0),
    Sketcher.Constraint("DistanceY", 0, 3, -1, 1, 159.0),
    Sketcher.Constraint("DistanceX", -1, 1, 1, 3, 35.0),
    Sketcher.Constraint("DistanceX", -1, 1, 2, 3, 50.0),
    Sketcher.Constraint("DistanceX", -1, 1, 3, 3, 65.0),
    Sketcher.Constraint("DistanceX", -1, 1, 4, 3, 80.0),
    Sketcher.Constraint("DistanceX", -1, 1, 5, 3, 95.0),
    Sketcher.Constraint("DistanceX", -1, 1, 6, 3, 110.0),
    Sketcher.Constraint("DistanceX", -1, 1, 7, 3, 125.0),
    Sketcher.Constraint("DistanceX", -1, 1, 8, 3, 5.0),
    Sketcher.Constraint("DistanceY", 9, 3, -1, 1, 89.0),
    Sketcher.Constraint("DistanceY", 27, 3, -1, 1, 1.0),
    Sketcher.Constraint("DistanceY", 40, 3, -1, 1, 4.0),
    Sketcher.Constraint("DistanceY", 43, 3, -1, 1, 124.0),
    Sketcher.Constraint("DistanceY", 42, 3, -1, 1, 141.5),
    Sketcher.Constraint("DistanceY", 44, 3, -1, 1, 106.5),
    Sketcher.Constraint("DistanceY", 36, 3, -1, 1, 57.54716),
    Sketcher.Constraint("DistanceY", 18, 3, -1, 1, 76.396214),
    Sketcher.Constraint("DistanceY", 34, 3, -1, 1, 38.698107),
    Sketcher.Constraint("DistanceY", 38, 3, -1, 1, 19.849053),
])
pad2 = doc.addObject("PartDesign::Pad", "Pad001")
body.addObject(pad2)
pad2.Profile = sketch11
pad2.Length = 1.8
pad2.Reversed = True

# Sketch on YZ plane
sketch12 = doc.addObject("Sketcher::SketchObject", "Sketch011")
body.addObject(sketch12)
sketch12.AttachmentSupport = (doc.YZ_Plane, [""])
sketch12.MapMode = "FlatFace"
sketch12.AttachmentOffset = App.Placement(Vector(0, 0, 73), App.Rotation())
sketch12.addGeometry(Part.Circle(Vector(11.2, -162, 0), Vector(0, 0, 1), 0.7), False)
sketch12.addConstraint([
    Sketcher.Constraint("Diameter", 0, 1.4),
    Sketcher.Constraint("DistanceY", 0, 3, -1, 1, 162.0),
    Sketcher.Constraint("DistanceX", -1, 1, 0, 3, 11.2),
])
pocket10 = doc.addObject("PartDesign::Pocket", "Pocket009")
body.addObject(pocket10)
pocket10.Profile = sketch12
pocket10.Length = 16

doc.recompute()
